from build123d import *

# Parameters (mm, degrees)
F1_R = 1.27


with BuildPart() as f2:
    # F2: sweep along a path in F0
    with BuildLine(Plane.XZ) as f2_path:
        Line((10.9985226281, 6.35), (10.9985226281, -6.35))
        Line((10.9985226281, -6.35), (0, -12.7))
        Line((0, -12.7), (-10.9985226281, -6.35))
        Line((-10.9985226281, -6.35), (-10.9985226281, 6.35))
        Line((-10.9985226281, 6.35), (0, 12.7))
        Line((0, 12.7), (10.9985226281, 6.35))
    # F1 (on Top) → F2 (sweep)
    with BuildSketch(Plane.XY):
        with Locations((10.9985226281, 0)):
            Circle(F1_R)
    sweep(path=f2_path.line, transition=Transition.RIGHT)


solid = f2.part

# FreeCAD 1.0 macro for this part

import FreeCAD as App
import Part
import Sketcher
Q = App.Units.Quantity


def add_polygon(sketch, points):
    """Adds a closed chain of lines whose ends are joined by coincident constraints."""
    first, n = sketch.GeometryCount, len(points)
    for a, b in zip(points, points[1:] + points[:1]):
        sketch.addGeometry(Part.LineSegment(App.Vector(*a, 0), App.Vector(*b, 0)), False)
    for i in range(n):
        sketch.addConstraint(Sketcher.Constraint("Coincident", first + i, 2, first + (i + 1) % n, 1))

doc = App.newDocument("Part")
body = doc.addObject("PartDesign::Body", "Body")

# Sketch on XY plane
sketch1 = doc.addObject("Sketcher::SketchObject", "Sketch")
body.addObject(sketch1)
sketch1.AttachmentSupport = (doc.XY_Plane, [""])
sketch1.MapMode = "FlatFace"
sketch1.addGeometry(Part.Circle(App.Vector(11, 0, 0), App.Vector(0, 0, 1), 1.3), False)
sketch1.addConstraint(Sketcher.Constraint("PointOnObject", 0, 3, -1))
sketch1.addConstraint(Sketcher.Constraint("Diameter", 0, Q("0.1 in")))
sketch1.addConstraint(Sketcher.Constraint("DistanceX", -1, 1, 0, 3, Q("10.998523 mm")))

# Sketch on XZ plane
sketch2 = doc.addObject("Sketcher::SketchObject", "Sketch001")
body.addObject(sketch2)
sketch2.AttachmentSupport = (doc.XZ_Plane, [""])
sketch2.MapMode = "FlatFace"
add_polygon(sketch2, [(11, 6), (11, -6), (0, -13), (-11, -6), (-11, 6), (0, 13)])  # lines 0-5
sketch2.addConstraint(Sketcher.Constraint("Vertical", 0))
sketch2.addConstraint(Sketcher.Constraint("Vertical", 3))
sketch2.addConstraint(Sketcher.Constraint("Symmetric", 0, 2, 3, 2, -1, 1))
sketch2.addConstraint(Sketcher.Constraint("Symmetric", 1, 2, 4, 2, -1, 1))
sketch2.addConstraint(Sketcher.Constraint("PointOnObject", 1, 2, -2))
sketch2.addConstraint(Sketcher.Constraint("Parallel", 2, 5))
sketch2.addConstraint(Sketcher.Constraint("Horizontal", 0, 2, 2, 2))
sketch2.addConstraint(Sketcher.Constraint("DistanceY", 0, 2, 0, 1, Q("0.5 in")))
sketch2.addConstraint(Sketcher.Constraint("Angle", 1, Q("-150 deg")))
sketch2.addConstraint(Sketcher.Constraint("DistanceY", 1, 2, 4, 2, Q("1 in")))
doc.recompute()

additivepipe = doc.addObject("PartDesign::AdditivePipe", "AdditivePipe")
body.addObject(additivepipe)
additivepipe.Profile = sketch1
additivepipe.Spine = (sketch2, ["Edge1", "Edge2", "Edge3", "Edge4", "Edge5", "Edge6"])
additivepipe.Transition = "Right corner"

doc.recompute()
